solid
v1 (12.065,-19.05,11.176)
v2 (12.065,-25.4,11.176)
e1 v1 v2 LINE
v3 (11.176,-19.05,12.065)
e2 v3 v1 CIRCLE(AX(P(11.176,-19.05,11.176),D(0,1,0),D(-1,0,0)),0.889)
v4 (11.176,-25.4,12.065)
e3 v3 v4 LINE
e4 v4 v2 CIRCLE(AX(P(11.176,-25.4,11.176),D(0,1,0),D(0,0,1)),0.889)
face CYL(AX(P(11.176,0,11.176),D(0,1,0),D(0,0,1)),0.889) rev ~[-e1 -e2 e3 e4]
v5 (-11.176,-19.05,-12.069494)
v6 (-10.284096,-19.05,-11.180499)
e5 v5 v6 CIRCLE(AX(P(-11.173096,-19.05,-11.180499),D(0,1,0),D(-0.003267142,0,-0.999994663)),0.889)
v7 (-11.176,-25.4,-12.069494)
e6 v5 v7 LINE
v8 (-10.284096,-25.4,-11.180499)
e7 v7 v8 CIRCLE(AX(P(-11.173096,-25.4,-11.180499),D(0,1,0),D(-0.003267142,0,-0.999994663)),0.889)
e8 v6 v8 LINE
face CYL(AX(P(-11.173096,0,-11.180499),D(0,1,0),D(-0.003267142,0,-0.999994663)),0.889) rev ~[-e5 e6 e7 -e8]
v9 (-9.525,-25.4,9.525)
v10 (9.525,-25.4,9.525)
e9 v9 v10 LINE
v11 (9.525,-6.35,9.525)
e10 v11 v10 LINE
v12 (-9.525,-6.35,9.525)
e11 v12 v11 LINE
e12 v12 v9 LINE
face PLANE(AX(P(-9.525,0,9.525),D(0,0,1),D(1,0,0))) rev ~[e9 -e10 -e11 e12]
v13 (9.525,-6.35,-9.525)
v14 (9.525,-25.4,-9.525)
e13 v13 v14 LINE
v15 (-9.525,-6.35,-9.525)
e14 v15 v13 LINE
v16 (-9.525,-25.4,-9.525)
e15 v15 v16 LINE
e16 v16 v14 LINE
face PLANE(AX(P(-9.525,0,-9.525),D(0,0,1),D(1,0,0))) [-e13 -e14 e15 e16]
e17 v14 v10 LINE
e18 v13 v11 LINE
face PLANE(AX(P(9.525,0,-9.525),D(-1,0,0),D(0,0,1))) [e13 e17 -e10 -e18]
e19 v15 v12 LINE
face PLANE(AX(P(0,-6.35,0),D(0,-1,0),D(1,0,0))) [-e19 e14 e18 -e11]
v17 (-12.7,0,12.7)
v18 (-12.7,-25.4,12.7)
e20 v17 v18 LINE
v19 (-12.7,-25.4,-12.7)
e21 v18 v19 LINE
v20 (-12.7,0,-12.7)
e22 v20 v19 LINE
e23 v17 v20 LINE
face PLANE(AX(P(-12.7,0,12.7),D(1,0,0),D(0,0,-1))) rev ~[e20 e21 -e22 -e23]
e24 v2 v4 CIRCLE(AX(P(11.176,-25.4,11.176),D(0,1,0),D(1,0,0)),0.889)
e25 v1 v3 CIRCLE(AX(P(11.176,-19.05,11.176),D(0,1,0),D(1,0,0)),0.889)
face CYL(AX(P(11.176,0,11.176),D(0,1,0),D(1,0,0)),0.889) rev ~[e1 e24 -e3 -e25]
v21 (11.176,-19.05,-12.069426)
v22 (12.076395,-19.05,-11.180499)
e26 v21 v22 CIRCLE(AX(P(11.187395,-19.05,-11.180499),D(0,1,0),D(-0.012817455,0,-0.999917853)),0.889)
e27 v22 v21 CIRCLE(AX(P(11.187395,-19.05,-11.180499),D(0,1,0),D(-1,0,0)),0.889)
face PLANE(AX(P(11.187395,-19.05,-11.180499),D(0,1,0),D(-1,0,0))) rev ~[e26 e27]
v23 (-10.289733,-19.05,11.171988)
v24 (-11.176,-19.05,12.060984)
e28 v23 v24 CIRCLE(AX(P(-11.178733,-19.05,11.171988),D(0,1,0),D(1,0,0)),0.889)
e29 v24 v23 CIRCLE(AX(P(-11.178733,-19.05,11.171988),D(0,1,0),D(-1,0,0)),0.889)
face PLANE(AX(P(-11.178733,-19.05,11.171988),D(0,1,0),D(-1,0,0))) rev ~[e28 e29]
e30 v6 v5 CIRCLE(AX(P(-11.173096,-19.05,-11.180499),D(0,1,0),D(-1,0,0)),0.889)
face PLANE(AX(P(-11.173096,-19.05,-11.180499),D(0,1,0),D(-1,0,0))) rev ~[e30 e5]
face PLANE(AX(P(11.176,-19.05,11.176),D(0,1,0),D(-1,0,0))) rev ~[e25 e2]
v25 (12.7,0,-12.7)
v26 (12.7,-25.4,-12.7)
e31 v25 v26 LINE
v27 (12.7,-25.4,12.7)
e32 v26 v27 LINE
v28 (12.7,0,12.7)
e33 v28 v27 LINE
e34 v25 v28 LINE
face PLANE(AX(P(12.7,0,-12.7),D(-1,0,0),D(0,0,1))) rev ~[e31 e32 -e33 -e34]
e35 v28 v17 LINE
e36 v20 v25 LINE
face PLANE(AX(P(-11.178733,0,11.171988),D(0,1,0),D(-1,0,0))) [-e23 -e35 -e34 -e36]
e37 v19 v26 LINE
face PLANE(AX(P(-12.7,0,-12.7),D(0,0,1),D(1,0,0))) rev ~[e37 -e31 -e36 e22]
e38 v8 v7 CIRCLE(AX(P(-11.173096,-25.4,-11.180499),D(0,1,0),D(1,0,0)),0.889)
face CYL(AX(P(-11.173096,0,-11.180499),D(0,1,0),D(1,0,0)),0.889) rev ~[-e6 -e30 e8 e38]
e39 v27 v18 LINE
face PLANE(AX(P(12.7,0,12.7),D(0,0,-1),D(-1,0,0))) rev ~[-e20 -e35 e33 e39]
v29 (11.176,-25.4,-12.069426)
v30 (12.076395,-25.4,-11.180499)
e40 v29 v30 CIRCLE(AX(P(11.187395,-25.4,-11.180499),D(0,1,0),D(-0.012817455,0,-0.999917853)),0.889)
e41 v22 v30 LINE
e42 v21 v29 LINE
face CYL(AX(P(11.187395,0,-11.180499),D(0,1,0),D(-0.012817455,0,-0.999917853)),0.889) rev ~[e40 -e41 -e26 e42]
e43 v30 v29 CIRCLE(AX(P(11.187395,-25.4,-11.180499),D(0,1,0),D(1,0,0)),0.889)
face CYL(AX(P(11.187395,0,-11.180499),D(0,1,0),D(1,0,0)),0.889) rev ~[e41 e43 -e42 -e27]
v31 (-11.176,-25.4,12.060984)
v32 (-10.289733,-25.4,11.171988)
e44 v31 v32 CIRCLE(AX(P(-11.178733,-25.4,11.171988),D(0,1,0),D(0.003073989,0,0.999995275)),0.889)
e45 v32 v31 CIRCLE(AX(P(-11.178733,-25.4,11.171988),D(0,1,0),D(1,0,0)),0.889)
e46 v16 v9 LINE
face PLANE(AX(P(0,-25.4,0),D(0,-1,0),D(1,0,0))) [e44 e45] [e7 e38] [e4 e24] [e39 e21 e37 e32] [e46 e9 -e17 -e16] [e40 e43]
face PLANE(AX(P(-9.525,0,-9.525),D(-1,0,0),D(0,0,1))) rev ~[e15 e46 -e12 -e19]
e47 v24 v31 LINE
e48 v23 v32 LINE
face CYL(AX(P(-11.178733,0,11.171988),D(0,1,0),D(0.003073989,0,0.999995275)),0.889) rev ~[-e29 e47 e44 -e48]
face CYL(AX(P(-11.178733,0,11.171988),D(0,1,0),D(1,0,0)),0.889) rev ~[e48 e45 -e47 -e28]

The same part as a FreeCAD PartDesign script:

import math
import FreeCAD as App
import Part
import Sketcher
Q = App.Units.Quantity

doc = App.newDocument("Part")
body = doc.addObject("PartDesign::Body", "Body")

# Sketch on XZ plane
sketch1 = doc.addObject("Sketcher::SketchObject", "Sketch")
body.addObject(sketch1)
sketch1.AttachmentSupport = (doc.XZ_Plane, [""])
sketch1.MapMode = "FlatFace"
sketch1.addGeometry(Part.LineSegment(App.Vector(12.7, -12.7, 0), App.Vector(12.7, 12.7, 0)), False)
sketch1.addGeometry(Part.LineSegment(App.Vector(12.7, 12.7, 0), App.Vector(-12.7, 12.7, 0)), False)
sketch1.addGeometry(Part.LineSegment(App.Vector(-12.7, 12.7, 0), App.Vector(-12.7, -12.7, 0)), False)
sketch1.addGeometry(Part.LineSegment(App.Vector(-12.7, -12.7, 0), App.Vector(12.7, -12.7, 0)), False)
sketch1.addGeometry(Part.ArcOfCircle(Part.Circle(App.Vector(-11.173096, -11.180499, 0), App.Vector(0, 0, 1), 0.889), math.radians(0), math.radians(269.812806)), False)
sketch1.addGeometry(Part.ArcOfCircle(Part.Circle(App.Vector(-11.173096, -11.180499, 0), App.Vector(0, 0, 1), 0.889), math.radians(-90.187194), math.radians(0)), False)
sketch1.addGeometry(Part.ArcOfCircle(Part.Circle(App.Vector(11.187395, -11.180499, 0), App.Vector(0, 0, 1), 0.889), math.radians(0), math.radians(269.265594)), False)
sketch1.addGeometry(Part.ArcOfCircle(Part.Circle(App.Vector(11.187395, -11.180499, 0), App.Vector(0, 0, 1), 0.889), math.radians(-90.734406), math.radians(0)), False)
sketch1.addGeometry(Part.LineSegment(App.Vector(9.525, -9.525, 0), App.Vector(-9.525, -9.525, 0)), False)
sketch1.addGeometry(Part.LineSegment(App.Vector(-9.525, -9.525, 0), App.Vector(-9.525, 9.525, 0)), False)
sketch1.addGeometry(Part.LineSegment(App.Vector(-9.525, 9.525, 0), App.Vector(9.525, 9.525, 0)), False)
sketch1.addGeometry(Part.LineSegment(App.Vector(9.525, 9.525, 0), App.Vector(9.525, -9.525, 0)), False)
sketch1.addGeometry(Part.ArcOfCircle(Part.Circle(App.Vector(-11.178733, 11.171988, 0), App.Vector(0, 0, 1), 0.889), math.radians(0), math.radians(89.823873)), False)
sketch1.addGeometry(Part.ArcOfCircle(Part.Circle(App.Vector(-11.178733, 11.171988, 0), App.Vector(0, 0, 1), 0.889), math.radians(89.823873), math.radians(360)), False)
sketch1.addGeometry(Part.ArcOfCircle(Part.Circle(App.Vector(11.176, 11.176, 0), App.Vector(0, 0, 1), 0.889), math.radians(0), math.radians(90)), False)
sketch1.addGeometry(Part.ArcOfCircle(Part.Circle(App.Vector(11.176, 11.176, 0), App.Vector(0, 0, 1), 0.889), math.radians(90), math.radians(360)), False)
sketch1.addConstraint(Sketcher.Constraint("Coincident", 0, 2, 1, 1))
sketch1.addConstraint(Sketcher.Constraint("Coincident", 1, 2, 2, 1))
sketch1.addConstraint(Sketcher.Constraint("Coincident", 2, 2, 3, 1))
sketch1.addConstraint(Sketcher.Constraint("Coincident", 3, 2, 0, 1))
sketch1.addConstraint(Sketcher.Constraint("Tangent", 4, 1, 5, 2))
sketch1.addConstraint(Sketcher.Constraint("Coincident", 5, 1, 4, 2))
sketch1.addConstraint(Sketcher.Constraint("Tangent", 6, 1, 7, 2))
sketch1.addConstraint(Sketcher.Constraint("Coincident", 7, 1, 6, 2))
sketch1.addConstraint(Sketcher.Constraint("Coincident", 8, 2, 9, 1))
sketch1.addConstraint(Sketcher.Constraint("Coincident", 9, 2, 10, 1))
sketch1.addConstraint(Sketcher.Constraint("Coincident", 10, 2, 11, 1))
sketch1.addConstraint(Sketcher.Constraint("Coincident", 11, 2, 8, 1))
sketch1.addConstraint(Sketcher.Constraint("Tangent", 12, 1, 13, 2))
sketch1.addConstraint(Sketcher.Constraint("Coincident", 13, 1, 12, 2))
sketch1.addConstraint(Sketcher.Constraint("Tangent", 14, 1, 15, 2))
sketch1.addConstraint(Sketcher.Constraint("Coincident", 15, 1, 14, 2))
sketch1.addConstraint(Sketcher.Constraint("Vertical", 0))
sketch1.addConstraint(Sketcher.Constraint("Horizontal", 1))
sketch1.addConstraint(Sketcher.Constraint("Vertical", 2))
sketch1.addConstraint(Sketcher.Constraint("Horizontal", 3))
sketch1.addConstraint(Sketcher.Constraint("Horizontal", 8))
sketch1.addConstraint(Sketcher.Constraint("Vertical", 9))
sketch1.addConstraint(Sketcher.Constraint("Horizontal", 10))
sketch1.addConstraint(Sketcher.Constraint("Vertical", 11))
sketch1.addConstraint(Sketcher.Constraint("Equal", 5, 6))
sketch1.addConstraint(Sketcher.Constraint("Equal", 7, 12))
sketch1.addConstraint(Sketcher.Constraint("Equal", 13, 14))
sketch1.addConstraint(Sketcher.Constraint("Symmetric", 0, 2, 2, 2, -1, 1))
sketch1.addConstraint(Sketcher.Constraint("Symmetric", 8, 2, 10, 2, -1, 1))
sketch1.addConstraint(Sketcher.Constraint("Horizontal", 5, 3, 6, 3))
sketch1.addConstraint(Sketcher.Constraint("Horizontal", 7, 3, 4, 1))
sketch1.addConstraint(Sketcher.Constraint("Horizontal", 4, 1, 6, 1))
sketch1.addConstraint(Sketcher.Constraint("Horizontal", 13, 3, 12, 1))
sketch1.addConstraint(Sketcher.Constraint("Horizontal", 15, 3, 14, 1))
sketch1.addConstraint(Sketcher.Constraint("Vertical", 15, 3, 7, 1))
sketch1.addConstraint(Sketcher.Constraint("Vertical", 5, 1, 13, 1))
sketch1.addConstraint(Sketcher.Constraint("Vertical", 7, 1, 15, 1))
sketch1.addConstraint(Sketcher.Constraint("Equal", 3, 0))
sketch1.addConstraint(Sketcher.Constraint("Equal", 10, 9))
sketch1.addConstraint(Sketcher.Constraint("DistanceX", 1, 2, 1, 1, Q("1 in")))
sketch1.addConstraint(Sketcher.Constraint("Radius", 4, Q("0.035 in")))
sketch1.addConstraint(Sketcher.Constraint("DistanceX", 8, 2, 8, 1, Q("0.75 in")))
sketch1.addConstraint(Sketcher.Constraint("DistanceX", 10, 2, 14, 1, Q("0.1 in")))
sketch1.addConstraint(Sketcher.Constraint("DistanceY", 10, 2, 15, 1, Q("0.1 in")))
sketch1.addConstraint(Sketcher.Constraint("DistanceX", 5, 1, -1, 1, Q("0.44 in")))
sketch1.addConstraint(Sketcher.Constraint("DistanceY", 4, 3, -1, 1, 11.180499))
sketch1.addConstraint(Sketcher.Constraint("DistanceY", -1, 1, 12, 3, 11.171988))
sketch1.addConstraint(Sketcher.Constraint("DistanceX", 4, 3, 6, 3, 22.36049))
sketch1.addConstraint(Sketcher.Constraint("DistanceX", 4, 3, -1, 1, 11.173096))
sketch1.addConstraint(Sketcher.Constraint("DistanceX", 12, 3, -1, 1, 11.178733))
pad1 = doc.addObject("PartDesign::Pad", "Pad")
body.addObject(pad1)
pad1.Profile = sketch1
pad1.Length = Q("1 in")

# Sketch on XZ plane
sketch2 = doc.addObject("Sketcher::SketchObject", "Sketch001")
body.addObject(sketch2)
sketch2.AttachmentSupport = (doc.XZ_Plane, [""])
sketch2.MapMode = "FlatFace"
sketch2.addGeometry(Part.LineSegment(App.Vector(-9.525, 9.525, 0), App.Vector(-9.525, -9.525, 0)), False)
sketch2.addGeometry(Part.LineSegment(App.Vector(-9.525, -9.525, 0), App.Vector(9.525, -9.525, 0)), False)
sketch2.addGeometry(Part.LineSegment(App.Vector(9.525, -9.525, 0), App.Vector(9.525, 9.525, 0)), False)
sketch2.addGeometry(Part.LineSegment(App.Vector(9.525, 9.525, 0), App.Vector(-9.525, 9.525, 0)), False)
sketch2.addConstraint(Sketcher.Constraint("Coincident", 0, 2, 1, 1))
sketch2.addConstraint(Sketcher.Constraint("Coincident", 1, 2, 2, 1))
sketch2.addConstraint(Sketcher.Constraint("Coincident", 2, 2, 3, 1))
sketch2.addConstraint(Sketcher.Constraint("Coincident", 3, 2, 0, 1))
sketch2.addConstraint(Sketcher.Constraint("Vertical", 0))
sketch2.addConstraint(Sketcher.Constraint("Horizontal", 1))
sketch2.addConstraint(Sketcher.Constraint("Vertical", 2))
sketch2.addConstraint(Sketcher.Constraint("Horizontal", 3))
sketch2.addConstraint(Sketcher.Constraint("Symmetric", 0, 2, 2, 2, -1, 1))
sketch2.addConstraint(Sketcher.Constraint("Equal", 3, 0))
sketch2.addConstraint(Sketcher.Constraint("DistanceX", 1, 1, 1, 2, Q("0.75 in")))
pad2 = doc.addObject("PartDesign::Pad", "Pad001")
body.addObject(pad2)
pad2.Profile = sketch2
pad2.Length = Q("0.25 in")

# Sketch on XZ plane
sketch3 = doc.addObject("Sketcher::SketchObject", "Sketch002")
body.addObject(sketch3)
sketch3.AttachmentSupport = (doc.XZ_Plane, [""])
sketch3.MapMode = "FlatFace"
sketch3.addGeometry(Part.Circle(App.Vector(-11.178733, 11.171988, 0), App.Vector(0, 0, 1), 0.889), False)
sketch3.addGeometry(Part.Circle(App.Vector(11.187395, -11.180499, 0), App.Vector(0, 0, 1), 0.889), False)
sketch3.addGeometry(Part.Circle(App.Vector(-11.173096, -11.180499, 0), App.Vector(0, 0, 1), 0.889), False)
sketch3.addGeometry(Part.Circle(App.Vector(11.176, 11.176, 0), App.Vector(0, 0, 1), 0.889), False)
sketch3.addConstraint(Sketcher.Constraint("Equal", 0, 1))
sketch3.addConstraint(Sketcher.Constraint("Equal", 1, 2))
sketch3.addConstraint(Sketcher.Constraint("Equal", 2, 3))
sketch3.addConstraint(Sketcher.Constraint("Horizontal", 1, 3, 2, 3))
sketch3.addConstraint(Sketcher.Constraint("Diameter", 0, Q("0.07 in")))
sketch3.addConstraint(Sketcher.Constraint("DistanceX", -1, 1, 3, 3, Q("0.44 in")))
sketch3.addConstraint(Sketcher.Constraint("DistanceY", -1, 1, 3, 3, Q("0.44 in")))
sketch3.addConstraint(Sketcher.Constraint("DistanceY", 1, 3, -1, 1, 11.180499))
sketch3.addConstraint(Sketcher.Constraint("DistanceY", -1, 1, 0, 3, 11.171988))
sketch3.addConstraint(Sketcher.Constraint("DistanceX", 2, 3, 1, 3, 22.36049))
sketch3.addConstraint(Sketcher.Constraint("DistanceX", 0, 3, -1, 1, 11.178733))
sketch3.addConstraint(Sketcher.Constraint("DistanceX", -1, 1, 1, 3, 11.187395))
pad3 = doc.addObject("PartDesign::Pad", "Pad002")
body.addObject(pad3)
pad3.Profile = sketch3
pad3.Length = Q("0.75 in")

doc.recompute()
